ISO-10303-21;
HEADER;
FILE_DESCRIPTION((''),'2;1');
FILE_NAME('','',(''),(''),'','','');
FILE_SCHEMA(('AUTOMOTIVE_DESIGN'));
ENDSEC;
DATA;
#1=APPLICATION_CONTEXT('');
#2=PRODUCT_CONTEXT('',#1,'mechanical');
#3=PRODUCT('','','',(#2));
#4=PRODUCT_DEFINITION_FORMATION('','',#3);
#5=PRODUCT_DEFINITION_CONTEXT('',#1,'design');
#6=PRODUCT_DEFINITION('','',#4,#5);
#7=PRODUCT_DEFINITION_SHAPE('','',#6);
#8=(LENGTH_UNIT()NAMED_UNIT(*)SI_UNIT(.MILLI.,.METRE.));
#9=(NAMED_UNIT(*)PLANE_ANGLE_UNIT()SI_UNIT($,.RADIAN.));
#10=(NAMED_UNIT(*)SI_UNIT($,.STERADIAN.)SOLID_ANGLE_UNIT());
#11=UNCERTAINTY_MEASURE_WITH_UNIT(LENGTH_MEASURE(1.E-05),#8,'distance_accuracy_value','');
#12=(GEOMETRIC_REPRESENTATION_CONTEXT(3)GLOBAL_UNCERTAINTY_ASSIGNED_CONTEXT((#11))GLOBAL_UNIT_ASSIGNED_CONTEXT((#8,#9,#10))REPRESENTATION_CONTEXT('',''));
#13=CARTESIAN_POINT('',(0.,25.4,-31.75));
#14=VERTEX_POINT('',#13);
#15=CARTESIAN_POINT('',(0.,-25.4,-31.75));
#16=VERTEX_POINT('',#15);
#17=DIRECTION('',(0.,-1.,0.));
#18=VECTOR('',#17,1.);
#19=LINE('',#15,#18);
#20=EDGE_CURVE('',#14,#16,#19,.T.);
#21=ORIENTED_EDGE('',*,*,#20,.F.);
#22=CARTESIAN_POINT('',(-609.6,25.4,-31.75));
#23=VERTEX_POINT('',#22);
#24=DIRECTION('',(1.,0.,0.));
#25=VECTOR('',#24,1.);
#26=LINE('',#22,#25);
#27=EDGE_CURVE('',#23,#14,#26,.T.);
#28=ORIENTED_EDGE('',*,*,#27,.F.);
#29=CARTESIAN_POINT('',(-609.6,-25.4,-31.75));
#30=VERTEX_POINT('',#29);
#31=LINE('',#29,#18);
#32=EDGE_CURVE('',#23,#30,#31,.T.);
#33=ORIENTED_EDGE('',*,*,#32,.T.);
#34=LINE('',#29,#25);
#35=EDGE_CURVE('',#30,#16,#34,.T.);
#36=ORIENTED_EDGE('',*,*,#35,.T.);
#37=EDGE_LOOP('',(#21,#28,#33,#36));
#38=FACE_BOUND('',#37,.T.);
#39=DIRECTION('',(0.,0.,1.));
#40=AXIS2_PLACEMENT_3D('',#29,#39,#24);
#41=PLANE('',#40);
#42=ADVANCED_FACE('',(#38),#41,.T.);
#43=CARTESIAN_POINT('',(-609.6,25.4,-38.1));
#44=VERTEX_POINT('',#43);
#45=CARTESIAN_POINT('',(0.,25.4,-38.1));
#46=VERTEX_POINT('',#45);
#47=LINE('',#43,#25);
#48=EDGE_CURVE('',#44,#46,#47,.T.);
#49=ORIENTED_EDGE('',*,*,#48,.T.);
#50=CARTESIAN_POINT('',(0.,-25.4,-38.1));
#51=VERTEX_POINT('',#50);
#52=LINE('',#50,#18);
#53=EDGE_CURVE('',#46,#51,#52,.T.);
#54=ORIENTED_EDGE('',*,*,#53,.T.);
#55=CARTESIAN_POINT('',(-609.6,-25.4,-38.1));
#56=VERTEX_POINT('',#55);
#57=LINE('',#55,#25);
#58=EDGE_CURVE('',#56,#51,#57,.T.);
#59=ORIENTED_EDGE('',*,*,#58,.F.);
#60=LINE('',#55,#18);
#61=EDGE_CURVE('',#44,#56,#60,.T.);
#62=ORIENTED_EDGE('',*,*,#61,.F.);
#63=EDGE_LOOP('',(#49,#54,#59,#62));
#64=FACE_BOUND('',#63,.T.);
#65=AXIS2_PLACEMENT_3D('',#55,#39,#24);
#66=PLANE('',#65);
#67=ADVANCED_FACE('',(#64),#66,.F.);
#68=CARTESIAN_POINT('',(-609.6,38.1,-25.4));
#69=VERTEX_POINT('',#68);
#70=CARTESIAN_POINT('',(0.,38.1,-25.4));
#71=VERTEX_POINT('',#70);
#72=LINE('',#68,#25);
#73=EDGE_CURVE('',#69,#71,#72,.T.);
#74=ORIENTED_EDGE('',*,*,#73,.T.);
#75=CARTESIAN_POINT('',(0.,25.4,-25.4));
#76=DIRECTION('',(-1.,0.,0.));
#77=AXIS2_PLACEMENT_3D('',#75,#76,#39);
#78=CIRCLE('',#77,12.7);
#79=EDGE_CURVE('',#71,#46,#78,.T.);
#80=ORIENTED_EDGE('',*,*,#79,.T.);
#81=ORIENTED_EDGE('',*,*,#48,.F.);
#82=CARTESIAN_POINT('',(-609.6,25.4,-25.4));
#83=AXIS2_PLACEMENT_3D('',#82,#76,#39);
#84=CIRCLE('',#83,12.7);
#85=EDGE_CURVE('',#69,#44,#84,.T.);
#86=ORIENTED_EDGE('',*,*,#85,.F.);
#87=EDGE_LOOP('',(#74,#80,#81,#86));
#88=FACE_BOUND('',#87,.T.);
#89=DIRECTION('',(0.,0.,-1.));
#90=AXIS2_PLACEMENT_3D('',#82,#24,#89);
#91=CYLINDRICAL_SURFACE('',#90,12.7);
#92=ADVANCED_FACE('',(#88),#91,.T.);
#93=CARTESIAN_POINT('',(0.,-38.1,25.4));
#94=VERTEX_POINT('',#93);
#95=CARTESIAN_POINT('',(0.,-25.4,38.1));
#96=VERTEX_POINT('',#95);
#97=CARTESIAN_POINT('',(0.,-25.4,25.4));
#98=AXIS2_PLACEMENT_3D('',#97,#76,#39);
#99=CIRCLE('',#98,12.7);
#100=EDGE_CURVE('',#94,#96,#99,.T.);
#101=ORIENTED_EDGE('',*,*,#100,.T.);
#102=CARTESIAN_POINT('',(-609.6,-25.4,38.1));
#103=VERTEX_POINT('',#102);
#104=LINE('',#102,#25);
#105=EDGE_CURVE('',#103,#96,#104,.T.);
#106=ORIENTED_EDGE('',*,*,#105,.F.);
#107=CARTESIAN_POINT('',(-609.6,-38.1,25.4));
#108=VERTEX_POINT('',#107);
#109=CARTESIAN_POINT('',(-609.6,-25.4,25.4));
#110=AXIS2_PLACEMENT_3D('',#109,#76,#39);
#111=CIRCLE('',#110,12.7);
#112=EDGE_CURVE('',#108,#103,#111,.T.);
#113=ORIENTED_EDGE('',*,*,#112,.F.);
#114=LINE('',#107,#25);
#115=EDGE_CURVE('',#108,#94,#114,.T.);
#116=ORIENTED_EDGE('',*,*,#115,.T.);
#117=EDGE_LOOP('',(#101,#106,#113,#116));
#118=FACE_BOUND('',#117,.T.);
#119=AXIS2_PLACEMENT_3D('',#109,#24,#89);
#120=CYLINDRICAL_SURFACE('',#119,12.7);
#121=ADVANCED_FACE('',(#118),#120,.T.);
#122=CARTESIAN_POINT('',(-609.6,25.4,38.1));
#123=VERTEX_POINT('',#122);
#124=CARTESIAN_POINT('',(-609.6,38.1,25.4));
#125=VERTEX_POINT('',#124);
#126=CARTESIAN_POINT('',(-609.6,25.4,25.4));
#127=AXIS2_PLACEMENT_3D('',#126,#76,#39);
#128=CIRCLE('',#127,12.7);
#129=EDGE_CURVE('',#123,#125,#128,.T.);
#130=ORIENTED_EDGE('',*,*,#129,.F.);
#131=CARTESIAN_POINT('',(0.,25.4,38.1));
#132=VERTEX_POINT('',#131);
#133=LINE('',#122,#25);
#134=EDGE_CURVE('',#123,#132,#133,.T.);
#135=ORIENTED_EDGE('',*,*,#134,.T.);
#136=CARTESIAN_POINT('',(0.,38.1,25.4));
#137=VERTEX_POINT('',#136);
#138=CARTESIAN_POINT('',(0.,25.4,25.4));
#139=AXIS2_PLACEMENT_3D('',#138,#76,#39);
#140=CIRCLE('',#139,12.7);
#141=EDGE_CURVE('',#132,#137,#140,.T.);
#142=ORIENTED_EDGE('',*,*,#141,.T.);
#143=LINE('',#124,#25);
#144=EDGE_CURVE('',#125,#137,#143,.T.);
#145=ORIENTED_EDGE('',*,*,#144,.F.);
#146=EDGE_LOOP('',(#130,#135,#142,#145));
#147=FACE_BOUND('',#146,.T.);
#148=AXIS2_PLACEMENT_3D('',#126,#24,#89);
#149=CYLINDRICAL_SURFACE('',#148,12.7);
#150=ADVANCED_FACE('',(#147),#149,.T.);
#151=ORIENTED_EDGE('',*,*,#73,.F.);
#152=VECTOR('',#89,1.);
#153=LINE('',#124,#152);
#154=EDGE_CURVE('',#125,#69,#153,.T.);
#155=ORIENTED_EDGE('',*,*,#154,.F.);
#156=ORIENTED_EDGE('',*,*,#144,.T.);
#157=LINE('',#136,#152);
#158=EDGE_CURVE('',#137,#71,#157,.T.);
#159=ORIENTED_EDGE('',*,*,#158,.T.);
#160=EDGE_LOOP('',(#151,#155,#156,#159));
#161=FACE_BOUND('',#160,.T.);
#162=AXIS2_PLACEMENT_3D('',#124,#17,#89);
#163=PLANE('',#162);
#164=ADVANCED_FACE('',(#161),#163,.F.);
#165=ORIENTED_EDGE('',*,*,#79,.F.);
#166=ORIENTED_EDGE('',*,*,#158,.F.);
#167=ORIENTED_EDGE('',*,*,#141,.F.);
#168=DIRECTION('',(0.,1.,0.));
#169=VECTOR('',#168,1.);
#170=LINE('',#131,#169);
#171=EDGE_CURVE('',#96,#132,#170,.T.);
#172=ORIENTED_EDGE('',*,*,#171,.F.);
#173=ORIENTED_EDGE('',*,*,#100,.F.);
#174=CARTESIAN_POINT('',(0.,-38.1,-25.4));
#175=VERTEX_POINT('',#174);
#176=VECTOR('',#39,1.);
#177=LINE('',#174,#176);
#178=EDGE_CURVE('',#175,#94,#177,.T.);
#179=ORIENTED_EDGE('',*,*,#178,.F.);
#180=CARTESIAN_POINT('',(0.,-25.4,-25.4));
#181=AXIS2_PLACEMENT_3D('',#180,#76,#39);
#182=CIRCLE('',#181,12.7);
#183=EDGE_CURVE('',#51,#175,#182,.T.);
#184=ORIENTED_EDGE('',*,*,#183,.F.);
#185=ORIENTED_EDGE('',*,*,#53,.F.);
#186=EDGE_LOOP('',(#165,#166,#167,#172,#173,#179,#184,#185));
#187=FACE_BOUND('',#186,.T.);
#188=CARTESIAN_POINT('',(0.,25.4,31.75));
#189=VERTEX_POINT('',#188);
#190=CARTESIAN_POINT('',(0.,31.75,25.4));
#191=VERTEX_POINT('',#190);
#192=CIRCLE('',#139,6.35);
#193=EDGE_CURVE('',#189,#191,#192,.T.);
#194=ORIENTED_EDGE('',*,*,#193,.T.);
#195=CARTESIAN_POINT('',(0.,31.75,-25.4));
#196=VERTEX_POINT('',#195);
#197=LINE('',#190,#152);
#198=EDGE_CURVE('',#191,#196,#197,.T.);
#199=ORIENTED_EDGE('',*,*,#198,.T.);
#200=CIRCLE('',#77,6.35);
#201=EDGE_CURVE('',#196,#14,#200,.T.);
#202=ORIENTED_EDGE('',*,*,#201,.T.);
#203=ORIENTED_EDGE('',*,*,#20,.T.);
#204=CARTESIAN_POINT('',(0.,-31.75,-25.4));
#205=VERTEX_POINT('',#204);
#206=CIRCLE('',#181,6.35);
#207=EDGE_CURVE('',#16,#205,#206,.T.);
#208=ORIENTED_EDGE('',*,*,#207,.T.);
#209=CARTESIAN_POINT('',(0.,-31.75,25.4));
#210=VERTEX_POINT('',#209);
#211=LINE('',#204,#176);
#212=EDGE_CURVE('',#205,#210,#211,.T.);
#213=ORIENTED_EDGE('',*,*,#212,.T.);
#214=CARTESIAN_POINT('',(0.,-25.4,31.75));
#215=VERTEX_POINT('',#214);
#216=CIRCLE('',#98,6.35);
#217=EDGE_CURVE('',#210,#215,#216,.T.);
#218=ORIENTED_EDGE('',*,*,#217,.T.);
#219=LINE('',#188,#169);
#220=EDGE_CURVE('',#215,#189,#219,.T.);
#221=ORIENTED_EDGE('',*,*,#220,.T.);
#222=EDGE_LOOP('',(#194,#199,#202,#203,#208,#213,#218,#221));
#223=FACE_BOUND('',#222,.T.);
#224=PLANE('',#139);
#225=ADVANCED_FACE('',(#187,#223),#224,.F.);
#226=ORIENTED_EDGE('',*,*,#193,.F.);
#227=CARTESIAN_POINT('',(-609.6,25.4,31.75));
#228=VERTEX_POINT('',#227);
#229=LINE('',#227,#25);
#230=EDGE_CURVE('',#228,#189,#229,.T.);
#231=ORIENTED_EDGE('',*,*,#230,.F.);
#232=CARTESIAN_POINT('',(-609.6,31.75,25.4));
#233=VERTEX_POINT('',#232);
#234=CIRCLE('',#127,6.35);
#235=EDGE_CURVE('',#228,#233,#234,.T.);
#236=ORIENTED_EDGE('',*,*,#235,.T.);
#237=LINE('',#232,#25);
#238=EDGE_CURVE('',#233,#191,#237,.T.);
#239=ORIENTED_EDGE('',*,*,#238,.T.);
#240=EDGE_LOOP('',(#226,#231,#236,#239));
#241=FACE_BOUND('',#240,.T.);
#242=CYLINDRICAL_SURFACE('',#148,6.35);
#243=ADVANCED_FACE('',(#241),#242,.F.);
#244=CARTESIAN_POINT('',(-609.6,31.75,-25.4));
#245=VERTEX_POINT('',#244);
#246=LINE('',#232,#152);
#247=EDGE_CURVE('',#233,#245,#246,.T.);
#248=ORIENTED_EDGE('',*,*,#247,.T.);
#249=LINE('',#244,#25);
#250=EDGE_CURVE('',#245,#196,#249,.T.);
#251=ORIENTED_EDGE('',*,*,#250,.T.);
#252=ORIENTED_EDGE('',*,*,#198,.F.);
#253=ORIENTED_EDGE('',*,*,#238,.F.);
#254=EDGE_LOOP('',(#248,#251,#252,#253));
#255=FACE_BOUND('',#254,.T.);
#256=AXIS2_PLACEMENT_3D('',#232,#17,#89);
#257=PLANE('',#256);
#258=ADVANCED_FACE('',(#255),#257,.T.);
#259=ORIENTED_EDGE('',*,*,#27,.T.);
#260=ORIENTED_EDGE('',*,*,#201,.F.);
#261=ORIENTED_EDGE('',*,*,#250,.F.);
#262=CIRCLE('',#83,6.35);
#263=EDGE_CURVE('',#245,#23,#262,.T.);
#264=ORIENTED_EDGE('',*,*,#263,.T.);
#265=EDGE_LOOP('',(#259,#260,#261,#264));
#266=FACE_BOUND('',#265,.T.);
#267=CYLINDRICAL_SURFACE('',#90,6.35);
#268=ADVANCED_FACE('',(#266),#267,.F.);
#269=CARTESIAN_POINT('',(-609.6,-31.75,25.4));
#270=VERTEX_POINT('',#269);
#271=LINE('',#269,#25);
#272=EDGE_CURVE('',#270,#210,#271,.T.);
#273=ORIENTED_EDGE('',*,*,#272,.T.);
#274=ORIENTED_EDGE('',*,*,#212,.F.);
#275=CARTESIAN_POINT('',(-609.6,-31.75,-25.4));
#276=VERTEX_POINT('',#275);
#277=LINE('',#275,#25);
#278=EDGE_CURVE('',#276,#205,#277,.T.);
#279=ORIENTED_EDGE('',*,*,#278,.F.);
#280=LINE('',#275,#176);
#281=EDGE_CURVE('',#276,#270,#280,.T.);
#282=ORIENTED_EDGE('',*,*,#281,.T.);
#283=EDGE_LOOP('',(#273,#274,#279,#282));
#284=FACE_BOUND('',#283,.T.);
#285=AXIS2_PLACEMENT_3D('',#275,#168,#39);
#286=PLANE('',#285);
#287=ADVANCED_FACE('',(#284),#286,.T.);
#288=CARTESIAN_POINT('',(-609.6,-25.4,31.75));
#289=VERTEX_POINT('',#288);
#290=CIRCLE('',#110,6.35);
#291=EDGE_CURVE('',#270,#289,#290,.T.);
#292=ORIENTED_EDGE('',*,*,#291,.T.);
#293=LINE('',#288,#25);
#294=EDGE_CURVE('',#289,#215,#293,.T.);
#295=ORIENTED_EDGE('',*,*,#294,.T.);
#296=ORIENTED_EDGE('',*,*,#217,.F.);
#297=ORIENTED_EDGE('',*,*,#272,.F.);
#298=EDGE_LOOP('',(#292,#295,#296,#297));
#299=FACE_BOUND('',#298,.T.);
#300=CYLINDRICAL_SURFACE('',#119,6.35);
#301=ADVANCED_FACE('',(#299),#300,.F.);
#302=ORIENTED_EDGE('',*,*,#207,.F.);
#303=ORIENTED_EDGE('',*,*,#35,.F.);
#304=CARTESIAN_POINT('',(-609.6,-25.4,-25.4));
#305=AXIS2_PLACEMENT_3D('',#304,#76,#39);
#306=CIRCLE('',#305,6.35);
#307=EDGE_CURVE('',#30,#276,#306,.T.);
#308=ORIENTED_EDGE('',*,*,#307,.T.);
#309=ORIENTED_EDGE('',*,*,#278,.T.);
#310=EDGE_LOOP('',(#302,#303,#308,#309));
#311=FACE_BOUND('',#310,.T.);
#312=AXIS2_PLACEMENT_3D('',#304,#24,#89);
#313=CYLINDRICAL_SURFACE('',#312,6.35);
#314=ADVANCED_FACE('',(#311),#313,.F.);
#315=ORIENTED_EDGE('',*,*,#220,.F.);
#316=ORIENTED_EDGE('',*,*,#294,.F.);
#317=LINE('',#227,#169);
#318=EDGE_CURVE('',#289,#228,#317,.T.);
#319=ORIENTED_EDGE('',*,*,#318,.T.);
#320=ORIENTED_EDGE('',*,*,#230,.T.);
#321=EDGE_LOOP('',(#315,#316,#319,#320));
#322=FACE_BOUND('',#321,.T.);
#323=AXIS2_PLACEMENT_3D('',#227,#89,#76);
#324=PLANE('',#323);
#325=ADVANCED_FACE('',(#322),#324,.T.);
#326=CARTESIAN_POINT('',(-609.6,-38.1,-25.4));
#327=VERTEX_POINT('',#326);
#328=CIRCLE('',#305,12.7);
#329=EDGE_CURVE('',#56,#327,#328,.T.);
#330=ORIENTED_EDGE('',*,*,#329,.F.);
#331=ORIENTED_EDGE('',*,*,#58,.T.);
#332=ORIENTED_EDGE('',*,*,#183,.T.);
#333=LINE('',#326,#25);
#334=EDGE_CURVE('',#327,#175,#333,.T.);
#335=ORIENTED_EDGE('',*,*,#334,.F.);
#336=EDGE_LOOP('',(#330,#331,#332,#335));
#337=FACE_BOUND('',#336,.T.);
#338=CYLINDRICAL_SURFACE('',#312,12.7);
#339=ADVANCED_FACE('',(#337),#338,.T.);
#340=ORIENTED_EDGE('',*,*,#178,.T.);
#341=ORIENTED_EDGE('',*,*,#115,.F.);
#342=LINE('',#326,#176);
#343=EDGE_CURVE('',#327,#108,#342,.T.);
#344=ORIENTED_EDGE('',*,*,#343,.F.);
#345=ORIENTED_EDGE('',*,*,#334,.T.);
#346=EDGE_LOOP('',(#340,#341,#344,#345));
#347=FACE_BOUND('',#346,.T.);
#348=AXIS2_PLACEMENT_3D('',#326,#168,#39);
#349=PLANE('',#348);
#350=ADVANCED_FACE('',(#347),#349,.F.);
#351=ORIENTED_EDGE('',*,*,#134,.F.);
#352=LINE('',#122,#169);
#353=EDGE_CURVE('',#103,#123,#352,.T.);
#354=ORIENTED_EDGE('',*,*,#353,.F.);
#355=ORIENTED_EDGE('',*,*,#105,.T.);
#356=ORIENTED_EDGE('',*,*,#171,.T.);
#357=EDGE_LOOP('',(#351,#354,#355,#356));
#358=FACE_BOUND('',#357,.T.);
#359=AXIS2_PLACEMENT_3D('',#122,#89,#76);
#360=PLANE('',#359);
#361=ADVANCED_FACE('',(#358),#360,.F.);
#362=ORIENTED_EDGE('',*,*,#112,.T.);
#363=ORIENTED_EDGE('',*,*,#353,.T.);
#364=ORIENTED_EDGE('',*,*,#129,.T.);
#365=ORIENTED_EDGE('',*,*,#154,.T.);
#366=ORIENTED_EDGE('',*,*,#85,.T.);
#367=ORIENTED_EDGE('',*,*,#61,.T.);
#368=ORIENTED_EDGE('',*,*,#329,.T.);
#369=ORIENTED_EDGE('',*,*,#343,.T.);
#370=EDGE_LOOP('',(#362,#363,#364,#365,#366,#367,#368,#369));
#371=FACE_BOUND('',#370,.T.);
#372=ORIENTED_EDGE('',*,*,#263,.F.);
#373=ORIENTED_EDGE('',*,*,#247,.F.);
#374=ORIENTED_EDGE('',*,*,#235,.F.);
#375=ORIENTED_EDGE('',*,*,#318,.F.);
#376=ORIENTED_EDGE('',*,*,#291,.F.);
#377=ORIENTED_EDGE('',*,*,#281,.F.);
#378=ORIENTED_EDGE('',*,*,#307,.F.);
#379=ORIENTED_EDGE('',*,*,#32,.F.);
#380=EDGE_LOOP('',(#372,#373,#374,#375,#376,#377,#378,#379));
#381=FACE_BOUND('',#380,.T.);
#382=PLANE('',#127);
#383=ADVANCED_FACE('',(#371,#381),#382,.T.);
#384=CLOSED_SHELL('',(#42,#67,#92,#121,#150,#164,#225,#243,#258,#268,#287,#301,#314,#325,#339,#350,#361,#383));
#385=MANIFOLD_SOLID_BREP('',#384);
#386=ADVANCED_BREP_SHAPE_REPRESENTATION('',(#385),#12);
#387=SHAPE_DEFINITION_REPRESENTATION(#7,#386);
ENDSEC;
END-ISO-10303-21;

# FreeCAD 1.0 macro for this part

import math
import FreeCAD as App
import Part
import Sketcher
Q = App.Units.Quantity

doc = App.newDocument("Part")
body = doc.addObject("PartDesign::Body", "Body")

sketch1 = body.newObject("Sketcher::SketchObject", "Sketch")
sketch1.AttachmentSupport = (doc.getObject("YZ_Plane"), [""])
sketch1.MapMode = "FlatFace"
sketch1.addGeometry([
    Part.LineSegment(App.Vector(-38, -25, 0), App.Vector(-38, 25, 0)),
    Part.ArcOfCircle(Part.Circle(App.Vector(-25, 25, 0), App.Vector(0, 0, 1), 13), math.radians(90), math.radians(180)),
    Part.LineSegment(App.Vector(-25, 38, 0), App.Vector(25, 38, 0)),
    Part.ArcOfCircle(Part.Circle(App.Vector(25, 25, 0), App.Vector(0, 0, 1), 13), math.radians(0), math.radians(90)),
    Part.LineSegment(App.Vector(38, 25, 0), App.Vector(38, -25, 0)),
    Part.ArcOfCircle(Part.Circle(App.Vector(25, -25, 0), App.Vector(0, 0, 1), 13), math.radians(-90), math.radians(0)),
    Part.LineSegment(App.Vector(25, -38, 0), App.Vector(-25, -38, 0)),
    Part.ArcOfCircle(Part.Circle(App.Vector(-25, -25, 0), App.Vector(0, 0, 1), 13), math.radians(180), math.radians(270)),
    Part.LineSegment(App.Vector(-32, 25, 0), App.Vector(-32, -25, 0)),
    Part.ArcOfCircle(Part.Circle(App.Vector(-25, -25, 0), App.Vector(0, 0, 1), 6), math.radians(180), math.radians(270)),
    Part.LineSegment(App.Vector(-25, -32, 0), App.Vector(25, -32, 0)),
    Part.ArcOfCircle(Part.Circle(App.Vector(25, -25, 0), App.Vector(0, 0, 1), 6), math.radians(-90), math.radians(0)),
    Part.LineSegment(App.Vector(32, -25, 0), App.Vector(32, 25, 0)),
    Part.ArcOfCircle(Part.Circle(App.Vector(25, 25, 0), App.Vector(0, 0, 1), 6), math.radians(0), math.radians(90)),
    Part.LineSegment(App.Vector(25, 32, 0), App.Vector(-25, 32, 0)),
    Part.ArcOfCircle(Part.Circle(App.Vector(-25, 25, 0), App.Vector(0, 0, 1), 6), math.radians(90), math.radians(180)),
], False)
sketch1.addConstraint([
    Sketcher.Constraint("Tangent", 0, 2, 1, 2),
    Sketcher.Constraint("Tangent", 1, 1, 2, 1),
    Sketcher.Constraint("Tangent", 2, 2, 3, 2),
    Sketcher.Constraint("Tangent", 3, 1, 4, 1),
    Sketcher.Constraint("Tangent", 4, 2, 5, 2),
    Sketcher.Constraint("Tangent", 5, 1, 6, 1),
    Sketcher.Constraint("Tangent", 6, 2, 7, 2),
    Sketcher.Constraint("Tangent", 7, 1, 0, 1),
    Sketcher.Constraint("Tangent", 8, 2, 9, 1),
    Sketcher.Constraint("Tangent", 9, 2, 10, 1),
    Sketcher.Constraint("Tangent", 10, 2, 11, 1),
    Sketcher.Constraint("Tangent", 11, 2, 12, 1),
    Sketcher.Constraint("Tangent", 12, 2, 13, 1),
    Sketcher.Constraint("Tangent", 13, 2, 14, 1),
    Sketcher.Constraint("Tangent", 14, 2, 15, 1),
    Sketcher.Constraint("Tangent", 15, 2, 8, 1),
    Sketcher.Constraint("Vertical", 0),
    Sketcher.Constraint("Horizontal", 2),
    Sketcher.Constraint("Vertical", 4),
    Sketcher.Constraint("Horizontal", 6),
    Sketcher.Constraint("Vertical", 8),
    Sketcher.Constraint("Horizontal", 10),
    Sketcher.Constraint("Vertical", 12),
    Sketcher.Constraint("Horizontal", 14),
    Sketcher.Constraint("Coincident", 9, 3, 7, 3),
    Sketcher.Constraint("Coincident", 11, 3, 5, 3),
    Sketcher.Constraint("Coincident", 13, 3, 3, 3),
    Sketcher.Constraint("Equal", 1, 3),
    Sketcher.Constraint("Equal", 3, 5),
    Sketcher.Constraint("Equal", 5, 7),
    Sketcher.Constraint("Equal", 13, 15),
    Sketcher.Constraint("Symmetric", 1, 3, 5, 3, -1, 1),
    Sketcher.Constraint("Equal", 14, 0),
    Sketcher.Constraint("Radius", 1, Q("0.5 in")),
    Sketcher.Constraint("DistanceX", 2, 1, 2, 2, Q("2 in")),
    Sketcher.Constraint("Radius", 9, Q("0.25 in")),
])
pad1 = body.newObject("PartDesign::Pad", "Pad")
pad1.Profile = sketch1
pad1.Length = Q("24 in")
pad1.Reversed = True

doc.recompute()
